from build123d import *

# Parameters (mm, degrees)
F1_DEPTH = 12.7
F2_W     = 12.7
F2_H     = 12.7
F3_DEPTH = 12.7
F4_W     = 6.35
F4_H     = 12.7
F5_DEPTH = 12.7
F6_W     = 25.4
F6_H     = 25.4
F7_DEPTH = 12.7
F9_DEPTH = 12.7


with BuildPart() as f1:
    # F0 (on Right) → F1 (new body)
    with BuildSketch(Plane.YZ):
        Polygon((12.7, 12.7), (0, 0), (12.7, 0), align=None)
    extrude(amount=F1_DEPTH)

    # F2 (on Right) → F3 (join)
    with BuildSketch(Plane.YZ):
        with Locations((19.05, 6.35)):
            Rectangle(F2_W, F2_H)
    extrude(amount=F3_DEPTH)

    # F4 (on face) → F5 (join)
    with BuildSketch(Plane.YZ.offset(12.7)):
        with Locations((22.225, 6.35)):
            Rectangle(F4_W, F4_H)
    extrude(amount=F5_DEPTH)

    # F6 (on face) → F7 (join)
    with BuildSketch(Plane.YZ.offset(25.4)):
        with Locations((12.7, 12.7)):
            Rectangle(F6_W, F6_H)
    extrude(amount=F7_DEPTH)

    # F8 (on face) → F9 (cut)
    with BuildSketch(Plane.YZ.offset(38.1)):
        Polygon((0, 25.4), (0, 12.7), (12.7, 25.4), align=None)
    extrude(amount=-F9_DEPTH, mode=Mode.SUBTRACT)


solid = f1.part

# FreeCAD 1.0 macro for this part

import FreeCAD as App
import Part
import Sketcher
from FreeCAD import Vector
Q = App.Units.Quantity

doc = App.newDocument("Part")
body = doc.addObject("PartDesign::Body", "Body")

# Sketch on YZ plane
sketch1 = doc.addObject("Sketcher::SketchObject", "Sketch")
body.addObject(sketch1)
sketch1.AttachmentSupport = (doc.YZ_Plane, [""])
sketch1.MapMode = "FlatFace"
sketch1.addGeometry(Part.LineSegment(Vector(13, 13, 0), Vector(0, 0, 0)), False)
sketch1.addGeometry(Part.LineSegment(Vector(0, 0, 0), Vector(13, 0, 0)), False)
sketch1.addGeometry(Part.LineSegment(Vector(13, 0, 0), Vector(13, 13, 0)), False)
sketch1.addConstraint(Sketcher.Constraint("Coincident", 0, 2, 1, 1))
sketch1.addConstraint(Sketcher.Constraint("Coincident", 1, 2, 2, 1))
sketch1.addConstraint(Sketcher.Constraint("Coincident", 2, 2, 0, 1))
sketch1.addConstraint(Sketcher.Constraint("Horizontal", 1))
sketch1.addConstraint(Sketcher.Constraint("Vertical", 2))
sketch1.addConstraint(Sketcher.Constraint("Coincident", 0, 2, -1, 1))
sketch1.addConstraint(Sketcher.Constraint("Equal", 1, 2))
sketch1.addConstraint(Sketcher.Constraint("DistanceX", 1, 1, 1, 2, Q("0.5 in")))
pad1 = doc.addObject("PartDesign::Pad", "Pad")
body.addObject(pad1)
pad1.Profile = sketch1
pad1.Length = Q("0.5 in")

# Sketch on YZ plane
sketch2 = doc.addObject("Sketcher::SketchObject", "Sketch001")
body.addObject(sketch2)
sketch2.AttachmentSupport = (doc.YZ_Plane, [""])
sketch2.MapMode = "FlatFace"
sketch2.addGeometry(Part.LineSegment(Vector(13, 13, 0), Vector(13, 0, 0)), False)
sketch2.addGeometry(Part.LineSegment(Vector(13, 0, 0), Vector(25, 0, 0)), False)
sketch2.addGeometry(Part.LineSegment(Vector(25, 0, 0), Vector(25, 13, 0)), False)
sketch2.addGeometry(Part.LineSegment(Vector(25, 13, 0), Vector(13, 13, 0)), False)
sketch2.addConstraint(Sketcher.Constraint("Coincident", 0, 2, 1, 1))
sketch2.addConstraint(Sketcher.Constraint("Coincident", 1, 2, 2, 1))
sketch2.addConstraint(Sketcher.Constraint("Coincident", 2, 2, 3, 1))
sketch2.addConstraint(Sketcher.Constraint("Coincident", 3, 2, 0, 1))
sketch2.addConstraint(Sketcher.Constraint("Vertical", 0))
sketch2.addConstraint(Sketcher.Constraint("Horizontal", 1))
sketch2.addConstraint(Sketcher.Constraint("Vertical", 2))
sketch2.addConstraint(Sketcher.Constraint("Horizontal", 3))
sketch2.addConstraint(Sketcher.Constraint("PointOnObject", 0, 2, -1))
sketch2.addConstraint(Sketcher.Constraint("Equal", 3, 0))
sketch2.addConstraint(Sketcher.Constraint("DistanceX", 1, 1, 1, 2, Q("0.5 in")))
sketch2.addConstraint(Sketcher.Constraint("DistanceX", -1, 1, 1, 2, Q("1 in")))
pad2 = doc.addObject("PartDesign::Pad", "Pad001")
body.addObject(pad2)
pad2.Profile = sketch2
pad2.Length = Q("0.5 in")

# Sketch on YZ plane
sketch3 = doc.addObject("Sketcher::SketchObject", "Sketch002")
body.addObject(sketch3)
sketch3.AttachmentSupport = (doc.YZ_Plane, [""])
sketch3.MapMode = "FlatFace"
sketch3.AttachmentOffset = App.Placement(Vector(0, 0, 0.5 * 25.4), App.Rotation())
sketch3.addGeometry(Part.LineSegment(Vector(19, 13, 0), Vector(19, 0, 0)), False)
sketch3.addGeometry(Part.LineSegment(Vector(19, 0, 0), Vector(25, 0, 0)), False)
sketch3.addGeometry(Part.LineSegment(Vector(25, 0, 0), Vector(25, 13, 0)), False)
sketch3.addGeometry(Part.LineSegment(Vector(25, 13, 0), Vector(19, 13, 0)), False)
sketch3.addConstraint(Sketcher.Constraint("Coincident", 0, 2, 1, 1))
sketch3.addConstraint(Sketcher.Constraint("Coincident", 1, 2, 2, 1))
sketch3.addConstraint(Sketcher.Constraint("Coincident", 2, 2, 3, 1))
sketch3.addConstraint(Sketcher.Constraint("Coincident", 3, 2, 0, 1))
sketch3.addConstraint(Sketcher.Constraint("Vertical", 0))
sketch3.addConstraint(Sketcher.Constraint("Horizontal", 1))
sketch3.addConstraint(Sketcher.Constraint("Vertical", 2))
sketch3.addConstraint(Sketcher.Constraint("Horizontal", 3))
sketch3.addConstraint(Sketcher.Constraint("PointOnObject", 0, 2, -1))
sketch3.addConstraint(Sketcher.Constraint("DistanceY", 0, 2, 0, 1, Q("0.5 in")))
sketch3.addConstraint(Sketcher.Constraint("DistanceX", -1, 1, 1, 2, Q("1 in")))
sketch3.addConstraint(Sketcher.Constraint("DistanceX", 1, 1, 1, 2, Q("0.25 in")))
pad3 = doc.addObject("PartDesign::Pad", "Pad002")
body.addObject(pad3)
pad3.Profile = sketch3
pad3.Length = Q("0.5 in")

# Sketch on YZ plane
sketch4 = doc.addObject("Sketcher::SketchObject", "Sketch003")
body.addObject(sketch4)
sketch4.AttachmentSupport = (doc.YZ_Plane, [""])
sketch4.MapMode = "FlatFace"
sketch4.AttachmentOffset = App.Placement(Vector(0, 0, 1 * 25.4), App.Rotation())
sketch4.addGeometry(Part.LineSegment(Vector(0, 25, 0), Vector(0, 0, 0)), False)
sketch4.addGeometry(Part.LineSegment(Vector(0, 0, 0), Vector(25, 0, 0)), False)
sketch4.addGeometry(Part.LineSegment(Vector(25, 0, 0), Vector(25, 25, 0)), False)
sketch4.addGeometry(Part.LineSegment(Vector(25, 25, 0), Vector(0, 25, 0)), False)
sketch4.addConstraint(Sketcher.Constraint("Coincident", 0, 2, 1, 1))
sketch4.addConstraint(Sketcher.Constraint("Coincident", 1, 2, 2, 1))
sketch4.addConstraint(Sketcher.Constraint("Coincident", 2, 2, 3, 1))
sketch4.addConstraint(Sketcher.Constraint("Coincident", 3, 2, 0, 1))
sketch4.addConstraint(Sketcher.Constraint("Vertical", 0))
sketch4.addConstraint(Sketcher.Constraint("Horizontal", 1))
sketch4.addConstraint(Sketcher.Constraint("Vertical", 2))
sketch4.addConstraint(Sketcher.Constraint("Horizontal", 3))
sketch4.addConstraint(Sketcher.Constraint("Coincident", 0, 2, -1, 1))
sketch4.addConstraint(Sketcher.Constraint("Equal", 3, 0))
sketch4.addConstraint(Sketcher.Constraint("DistanceX", 1, 1, 1, 2, Q("1 in")))
pad4 = doc.addObject("PartDesign::Pad", "Pad003")
body.addObject(pad4)
pad4.Profile = sketch4
pad4.Length = Q("0.5 in")

# Sketch on YZ plane
sketch5 = doc.addObject("Sketcher::SketchObject", "Sketch004")
body.addObject(sketch5)
sketch5.AttachmentSupport = (doc.YZ_Plane, [""])
sketch5.MapMode = "FlatFace"
sketch5.AttachmentOffset = App.Placement(Vector(0, 0, 1.5 * 25.4), App.Rotation())
sketch5.addGeometry(Part.LineSegment(Vector(0, 25, 0), Vector(0, 13, 0)), False)
sketch5.addGeometry(Part.LineSegment(Vector(0, 13, 0), Vector(13, 25, 0)), False)
sketch5.addGeometry(Part.LineSegment(Vector(13, 25, 0), Vector(0, 25, 0)), False)
sketch5.addConstraint(Sketcher.Constraint("Coincident", 0, 2, 1, 1))
sketch5.addConstraint(Sketcher.Constraint("Coincident", 1, 2, 2, 1))
sketch5.addConstraint(Sketcher.Constraint("Coincident", 2, 2, 0, 1))
sketch5.addConstraint(Sketcher.Constraint("Vertical", 0))
sketch5.addConstraint(Sketcher.Constraint("Horizontal", 2))
sketch5.addConstraint(Sketcher.Constraint("PointOnObject", 0, 2, -2))
sketch5.addConstraint(Sketcher.Constraint("Equal", 2, 0))
sketch5.addConstraint(Sketcher.Constraint("DistanceX", 2, 2, 2, 1, Q("0.5 in")))
sketch5.addConstraint(Sketcher.Constraint("DistanceY", -1, 1, 1, 2, Q("1 in")))
pocket1 = doc.addObject("PartDesign::Pocket", "Pocket")
body.addObject(pocket1)
pocket1.Profile = sketch5
pocket1.Length = Q("0.5 in")

doc.recompute()
